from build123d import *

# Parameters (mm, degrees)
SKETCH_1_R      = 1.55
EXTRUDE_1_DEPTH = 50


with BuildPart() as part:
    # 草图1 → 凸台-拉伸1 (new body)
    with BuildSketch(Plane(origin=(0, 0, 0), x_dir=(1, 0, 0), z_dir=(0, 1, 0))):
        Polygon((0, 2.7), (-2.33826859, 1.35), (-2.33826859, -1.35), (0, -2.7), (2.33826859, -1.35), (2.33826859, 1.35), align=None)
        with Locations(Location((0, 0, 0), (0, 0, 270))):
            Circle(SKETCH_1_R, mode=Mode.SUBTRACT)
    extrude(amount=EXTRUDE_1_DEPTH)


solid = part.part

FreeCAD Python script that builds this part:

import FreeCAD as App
import Part
import Sketcher

V = App.Vector
Q = App.Units.Quantity


def add_polygon(sketch, points):
    """Adds a closed chain of lines whose ends are joined by coincident constraints."""
    first, n = sketch.GeometryCount, len(points)
    for a, b in zip(points, points[1:] + points[:1]):
        sketch.addGeometry(Part.LineSegment(App.Vector(*a, 0), App.Vector(*b, 0)), False)
    for i in range(n):
        sketch.addConstraint(Sketcher.Constraint("Coincident", first + i, 2, first + (i + 1) % n, 1))

doc = App.newDocument("Part")
params = doc.addObject("Spreadsheet::Sheet", "Params")
for row, (alias, value) in enumerate([
    ("sketch1_diameter", "3.1 mm"),
    ("sketch1_height", "2.7 mm"),
    ("sketch1_length", "2.7 mm"),
    ("pad1_length", "50 mm"),
], start=1):
    params.set(f"A{row}", alias)
    params.set(f"B{row}", "=" + value)
    params.setAlias(f"B{row}", alias)

body = doc.addObject("PartDesign::Body", "Body")

sketch1 = body.newObject("Sketcher::SketchObject", "Sketch")
sketch1.AttachmentSupport = (doc.getObject("XZ_Plane"), [""])
sketch1.MapMode = "FlatFace"
add_polygon(sketch1, [(0, -2.7), (-2.338269, -1.35), (-2.338269, 1.35), (0, 2.7), (2.338269, 1.35), (2.338269, -1.35)])
sketch1.addGeometry(Part.Circle(V(0, 0, 0), V(0, 0, 1), 1.55), False)
sketch1.addConstraint([
    Sketcher.Constraint("Vertical", 1),
    Sketcher.Constraint("Vertical", 4),
    Sketcher.Constraint("Coincident", 6, 3, -1, 1),
    Sketcher.Constraint("Symmetric", 0, 2, 3, 2, -1, 1),
    Sketcher.Constraint("Symmetric", 2, 2, 5, 2, -1, 1),
    Sketcher.Constraint("PointOnObject", 2, 2, -2),
    Sketcher.Constraint("Parallel", 2, 5),
    Sketcher.Constraint("Horizontal", 1, 2, 3, 2),
    Sketcher.Constraint("Diameter", 6, Q("3.1 mm")),
    Sketcher.Constraint("Angle", 0, Q("150 deg")),
    Sketcher.Constraint("DistanceY", 1, 1, 1, 2, Q("2.7 mm")),
    Sketcher.Constraint("Distance", 0, Q("2.7 mm")),
])
sketch1.setExpression("Constraints[14]", "Params.sketch1_diameter")
sketch1.setExpression("Constraints[16]", "Params.sketch1_height")
sketch1.setExpression("Constraints[17]", "Params.sketch1_length")
pad1 = body.newObject("PartDesign::Pad", "Pad")
pad1.Profile = sketch1
pad1.setExpression("Length", "Params.pad1_length")
pad1.Reversed = True

doc.recompute()
